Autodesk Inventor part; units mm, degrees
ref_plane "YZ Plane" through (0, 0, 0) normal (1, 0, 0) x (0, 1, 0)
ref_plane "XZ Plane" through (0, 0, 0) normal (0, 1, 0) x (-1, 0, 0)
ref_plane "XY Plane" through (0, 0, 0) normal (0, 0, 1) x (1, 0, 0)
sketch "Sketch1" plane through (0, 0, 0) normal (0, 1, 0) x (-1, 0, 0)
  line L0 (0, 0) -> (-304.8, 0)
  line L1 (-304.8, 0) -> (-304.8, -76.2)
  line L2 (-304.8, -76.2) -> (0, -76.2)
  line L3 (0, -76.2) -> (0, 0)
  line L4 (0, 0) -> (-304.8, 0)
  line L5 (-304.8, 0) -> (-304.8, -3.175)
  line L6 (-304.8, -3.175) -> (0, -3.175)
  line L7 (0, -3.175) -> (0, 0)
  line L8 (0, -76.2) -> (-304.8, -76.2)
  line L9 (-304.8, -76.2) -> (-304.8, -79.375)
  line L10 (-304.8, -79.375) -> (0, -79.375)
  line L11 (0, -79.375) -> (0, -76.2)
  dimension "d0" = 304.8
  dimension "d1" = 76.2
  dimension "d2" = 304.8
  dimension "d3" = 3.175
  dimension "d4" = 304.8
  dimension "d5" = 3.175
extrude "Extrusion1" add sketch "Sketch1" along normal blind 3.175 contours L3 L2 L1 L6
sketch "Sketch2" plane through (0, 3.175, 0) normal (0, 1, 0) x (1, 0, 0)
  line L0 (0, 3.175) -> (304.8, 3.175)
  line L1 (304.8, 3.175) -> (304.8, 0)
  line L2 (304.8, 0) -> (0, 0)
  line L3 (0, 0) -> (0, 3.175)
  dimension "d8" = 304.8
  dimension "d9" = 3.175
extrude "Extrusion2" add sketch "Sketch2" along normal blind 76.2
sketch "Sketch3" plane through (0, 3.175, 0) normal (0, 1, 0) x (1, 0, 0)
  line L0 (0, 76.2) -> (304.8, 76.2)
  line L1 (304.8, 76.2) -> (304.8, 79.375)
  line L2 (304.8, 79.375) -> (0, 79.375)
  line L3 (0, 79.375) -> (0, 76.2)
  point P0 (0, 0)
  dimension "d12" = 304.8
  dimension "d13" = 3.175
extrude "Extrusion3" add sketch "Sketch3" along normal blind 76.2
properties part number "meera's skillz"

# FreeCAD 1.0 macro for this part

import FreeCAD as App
import Part
import Sketcher

V = App.Vector
Q = App.Units.Quantity


def add_polygon(sketch, points):
    """Adds a closed chain of lines whose ends are joined by coincident constraints."""
    first, n = sketch.GeometryCount, len(points)
    for a, b in zip(points, points[1:] + points[:1]):
        sketch.addGeometry(Part.LineSegment(App.Vector(*a, 0), App.Vector(*b, 0)), False)
    for i in range(n):
        sketch.addConstraint(Sketcher.Constraint("Coincident", first + i, 2, first + (i + 1) % n, 1))

doc = App.newDocument("Part")
body = doc.addObject("PartDesign::Body", "Body")
body.AllowCompound = True

# Sketch on XZ plane
sketch1 = body.newObject("Sketcher::SketchObject", "Sketch")
sketch1.AttachmentSupport = (doc.getObject("XZ_Plane"), [""])
sketch1.MapMode = "FlatFace"
add_polygon(sketch1, [(0, -76), (0, -3), (305, -3), (305, -76)])  # lines 0-3
sketch1.addConstraint(Sketcher.Constraint("Vertical", 0))
sketch1.addConstraint(Sketcher.Constraint("Horizontal", 1))
sketch1.addConstraint(Sketcher.Constraint("Vertical", 2))
sketch1.addConstraint(Sketcher.Constraint("Horizontal", 3))
sketch1.addConstraint(Sketcher.Constraint("PointOnObject", 0, 2, -2))
sketch1.addConstraint(Sketcher.Constraint("DistanceX", 1, 1, 1, 2, Q("12 in")))
sketch1.addConstraint(Sketcher.Constraint("DistanceY", 2, 2, -1, 1, Q("3 in")))
sketch1.addConstraint(Sketcher.Constraint("DistanceY", 0, 2, -1, 1, Q("0.125 in")))
pad1 = body.newObject("PartDesign::Pad", "Pad")
pad1.Profile = sketch1
pad1.Length = Q("0.125 in")
pad1.Reversed = True

# Sketch on XZ plane
sketch2 = body.newObject("Sketcher::SketchObject", "Sketch001")
sketch2.AttachmentSupport = (doc.getObject("XZ_Plane"), [""])
sketch2.MapMode = "FlatFace"
sketch2.AttachmentOffset = App.Placement(V(0, 0, -0.125 * 25.4), App.Rotation())
add_polygon(sketch2, [(304.8, -3.2), (0, -3.2), (0, 0), (304.8, 0)])  # lines 0-3
sketch2.addConstraint(Sketcher.Constraint("Horizontal", 0))
sketch2.addConstraint(Sketcher.Constraint("Vertical", 1))
sketch2.addConstraint(Sketcher.Constraint("Horizontal", 2))
sketch2.addConstraint(Sketcher.Constraint("Vertical", 3))
sketch2.addConstraint(Sketcher.Constraint("Coincident", 1, 2, -1, 1))
sketch2.addConstraint(Sketcher.Constraint("DistanceX", 0, 2, 0, 1, Q("12 in")))
sketch2.addConstraint(Sketcher.Constraint("DistanceY", 1, 1, 1, 2, Q("0.125 in")))
pad2 = body.newObject("PartDesign::Pad", "Pad001")
pad2.Profile = sketch2
pad2.Length = Q("3 in")
pad2.Reversed = True

# Sketch on XZ plane
sketch3 = body.newObject("Sketcher::SketchObject", "Sketch002")
sketch3.AttachmentSupport = (doc.getObject("XZ_Plane"), [""])
sketch3.MapMode = "FlatFace"
sketch3.AttachmentOffset = App.Placement(V(0, 0, -0.125 * 25.4), App.Rotation())
add_polygon(sketch3, [(0, -79.4), (0, -76.2), (304.8, -76.2), (304.8, -79.4)])  # lines 0-3
sketch3.addConstraint(Sketcher.Constraint("Vertical", 0))
sketch3.addConstraint(Sketcher.Constraint("Horizontal", 1))
sketch3.addConstraint(Sketcher.Constraint("Vertical", 2))
sketch3.addConstraint(Sketcher.Constraint("Horizontal", 3))
sketch3.addConstraint(Sketcher.Constraint("PointOnObject", 0, 2, -2))
sketch3.addConstraint(Sketcher.Constraint("DistanceX", 1, 1, 1, 2, Q("12 in")))
sketch3.addConstraint(Sketcher.Constraint("DistanceY", 0, 1, 0, 2, Q("0.125 in")))
sketch3.addConstraint(Sketcher.Constraint("DistanceY", 0, 2, -1, 1, Q("3 in")))
pad3 = body.newObject("PartDesign::Pad", "Pad002")
pad3.Profile = sketch3
pad3.Length = Q("3 in")
pad3.Reversed = True

doc.recompute()
